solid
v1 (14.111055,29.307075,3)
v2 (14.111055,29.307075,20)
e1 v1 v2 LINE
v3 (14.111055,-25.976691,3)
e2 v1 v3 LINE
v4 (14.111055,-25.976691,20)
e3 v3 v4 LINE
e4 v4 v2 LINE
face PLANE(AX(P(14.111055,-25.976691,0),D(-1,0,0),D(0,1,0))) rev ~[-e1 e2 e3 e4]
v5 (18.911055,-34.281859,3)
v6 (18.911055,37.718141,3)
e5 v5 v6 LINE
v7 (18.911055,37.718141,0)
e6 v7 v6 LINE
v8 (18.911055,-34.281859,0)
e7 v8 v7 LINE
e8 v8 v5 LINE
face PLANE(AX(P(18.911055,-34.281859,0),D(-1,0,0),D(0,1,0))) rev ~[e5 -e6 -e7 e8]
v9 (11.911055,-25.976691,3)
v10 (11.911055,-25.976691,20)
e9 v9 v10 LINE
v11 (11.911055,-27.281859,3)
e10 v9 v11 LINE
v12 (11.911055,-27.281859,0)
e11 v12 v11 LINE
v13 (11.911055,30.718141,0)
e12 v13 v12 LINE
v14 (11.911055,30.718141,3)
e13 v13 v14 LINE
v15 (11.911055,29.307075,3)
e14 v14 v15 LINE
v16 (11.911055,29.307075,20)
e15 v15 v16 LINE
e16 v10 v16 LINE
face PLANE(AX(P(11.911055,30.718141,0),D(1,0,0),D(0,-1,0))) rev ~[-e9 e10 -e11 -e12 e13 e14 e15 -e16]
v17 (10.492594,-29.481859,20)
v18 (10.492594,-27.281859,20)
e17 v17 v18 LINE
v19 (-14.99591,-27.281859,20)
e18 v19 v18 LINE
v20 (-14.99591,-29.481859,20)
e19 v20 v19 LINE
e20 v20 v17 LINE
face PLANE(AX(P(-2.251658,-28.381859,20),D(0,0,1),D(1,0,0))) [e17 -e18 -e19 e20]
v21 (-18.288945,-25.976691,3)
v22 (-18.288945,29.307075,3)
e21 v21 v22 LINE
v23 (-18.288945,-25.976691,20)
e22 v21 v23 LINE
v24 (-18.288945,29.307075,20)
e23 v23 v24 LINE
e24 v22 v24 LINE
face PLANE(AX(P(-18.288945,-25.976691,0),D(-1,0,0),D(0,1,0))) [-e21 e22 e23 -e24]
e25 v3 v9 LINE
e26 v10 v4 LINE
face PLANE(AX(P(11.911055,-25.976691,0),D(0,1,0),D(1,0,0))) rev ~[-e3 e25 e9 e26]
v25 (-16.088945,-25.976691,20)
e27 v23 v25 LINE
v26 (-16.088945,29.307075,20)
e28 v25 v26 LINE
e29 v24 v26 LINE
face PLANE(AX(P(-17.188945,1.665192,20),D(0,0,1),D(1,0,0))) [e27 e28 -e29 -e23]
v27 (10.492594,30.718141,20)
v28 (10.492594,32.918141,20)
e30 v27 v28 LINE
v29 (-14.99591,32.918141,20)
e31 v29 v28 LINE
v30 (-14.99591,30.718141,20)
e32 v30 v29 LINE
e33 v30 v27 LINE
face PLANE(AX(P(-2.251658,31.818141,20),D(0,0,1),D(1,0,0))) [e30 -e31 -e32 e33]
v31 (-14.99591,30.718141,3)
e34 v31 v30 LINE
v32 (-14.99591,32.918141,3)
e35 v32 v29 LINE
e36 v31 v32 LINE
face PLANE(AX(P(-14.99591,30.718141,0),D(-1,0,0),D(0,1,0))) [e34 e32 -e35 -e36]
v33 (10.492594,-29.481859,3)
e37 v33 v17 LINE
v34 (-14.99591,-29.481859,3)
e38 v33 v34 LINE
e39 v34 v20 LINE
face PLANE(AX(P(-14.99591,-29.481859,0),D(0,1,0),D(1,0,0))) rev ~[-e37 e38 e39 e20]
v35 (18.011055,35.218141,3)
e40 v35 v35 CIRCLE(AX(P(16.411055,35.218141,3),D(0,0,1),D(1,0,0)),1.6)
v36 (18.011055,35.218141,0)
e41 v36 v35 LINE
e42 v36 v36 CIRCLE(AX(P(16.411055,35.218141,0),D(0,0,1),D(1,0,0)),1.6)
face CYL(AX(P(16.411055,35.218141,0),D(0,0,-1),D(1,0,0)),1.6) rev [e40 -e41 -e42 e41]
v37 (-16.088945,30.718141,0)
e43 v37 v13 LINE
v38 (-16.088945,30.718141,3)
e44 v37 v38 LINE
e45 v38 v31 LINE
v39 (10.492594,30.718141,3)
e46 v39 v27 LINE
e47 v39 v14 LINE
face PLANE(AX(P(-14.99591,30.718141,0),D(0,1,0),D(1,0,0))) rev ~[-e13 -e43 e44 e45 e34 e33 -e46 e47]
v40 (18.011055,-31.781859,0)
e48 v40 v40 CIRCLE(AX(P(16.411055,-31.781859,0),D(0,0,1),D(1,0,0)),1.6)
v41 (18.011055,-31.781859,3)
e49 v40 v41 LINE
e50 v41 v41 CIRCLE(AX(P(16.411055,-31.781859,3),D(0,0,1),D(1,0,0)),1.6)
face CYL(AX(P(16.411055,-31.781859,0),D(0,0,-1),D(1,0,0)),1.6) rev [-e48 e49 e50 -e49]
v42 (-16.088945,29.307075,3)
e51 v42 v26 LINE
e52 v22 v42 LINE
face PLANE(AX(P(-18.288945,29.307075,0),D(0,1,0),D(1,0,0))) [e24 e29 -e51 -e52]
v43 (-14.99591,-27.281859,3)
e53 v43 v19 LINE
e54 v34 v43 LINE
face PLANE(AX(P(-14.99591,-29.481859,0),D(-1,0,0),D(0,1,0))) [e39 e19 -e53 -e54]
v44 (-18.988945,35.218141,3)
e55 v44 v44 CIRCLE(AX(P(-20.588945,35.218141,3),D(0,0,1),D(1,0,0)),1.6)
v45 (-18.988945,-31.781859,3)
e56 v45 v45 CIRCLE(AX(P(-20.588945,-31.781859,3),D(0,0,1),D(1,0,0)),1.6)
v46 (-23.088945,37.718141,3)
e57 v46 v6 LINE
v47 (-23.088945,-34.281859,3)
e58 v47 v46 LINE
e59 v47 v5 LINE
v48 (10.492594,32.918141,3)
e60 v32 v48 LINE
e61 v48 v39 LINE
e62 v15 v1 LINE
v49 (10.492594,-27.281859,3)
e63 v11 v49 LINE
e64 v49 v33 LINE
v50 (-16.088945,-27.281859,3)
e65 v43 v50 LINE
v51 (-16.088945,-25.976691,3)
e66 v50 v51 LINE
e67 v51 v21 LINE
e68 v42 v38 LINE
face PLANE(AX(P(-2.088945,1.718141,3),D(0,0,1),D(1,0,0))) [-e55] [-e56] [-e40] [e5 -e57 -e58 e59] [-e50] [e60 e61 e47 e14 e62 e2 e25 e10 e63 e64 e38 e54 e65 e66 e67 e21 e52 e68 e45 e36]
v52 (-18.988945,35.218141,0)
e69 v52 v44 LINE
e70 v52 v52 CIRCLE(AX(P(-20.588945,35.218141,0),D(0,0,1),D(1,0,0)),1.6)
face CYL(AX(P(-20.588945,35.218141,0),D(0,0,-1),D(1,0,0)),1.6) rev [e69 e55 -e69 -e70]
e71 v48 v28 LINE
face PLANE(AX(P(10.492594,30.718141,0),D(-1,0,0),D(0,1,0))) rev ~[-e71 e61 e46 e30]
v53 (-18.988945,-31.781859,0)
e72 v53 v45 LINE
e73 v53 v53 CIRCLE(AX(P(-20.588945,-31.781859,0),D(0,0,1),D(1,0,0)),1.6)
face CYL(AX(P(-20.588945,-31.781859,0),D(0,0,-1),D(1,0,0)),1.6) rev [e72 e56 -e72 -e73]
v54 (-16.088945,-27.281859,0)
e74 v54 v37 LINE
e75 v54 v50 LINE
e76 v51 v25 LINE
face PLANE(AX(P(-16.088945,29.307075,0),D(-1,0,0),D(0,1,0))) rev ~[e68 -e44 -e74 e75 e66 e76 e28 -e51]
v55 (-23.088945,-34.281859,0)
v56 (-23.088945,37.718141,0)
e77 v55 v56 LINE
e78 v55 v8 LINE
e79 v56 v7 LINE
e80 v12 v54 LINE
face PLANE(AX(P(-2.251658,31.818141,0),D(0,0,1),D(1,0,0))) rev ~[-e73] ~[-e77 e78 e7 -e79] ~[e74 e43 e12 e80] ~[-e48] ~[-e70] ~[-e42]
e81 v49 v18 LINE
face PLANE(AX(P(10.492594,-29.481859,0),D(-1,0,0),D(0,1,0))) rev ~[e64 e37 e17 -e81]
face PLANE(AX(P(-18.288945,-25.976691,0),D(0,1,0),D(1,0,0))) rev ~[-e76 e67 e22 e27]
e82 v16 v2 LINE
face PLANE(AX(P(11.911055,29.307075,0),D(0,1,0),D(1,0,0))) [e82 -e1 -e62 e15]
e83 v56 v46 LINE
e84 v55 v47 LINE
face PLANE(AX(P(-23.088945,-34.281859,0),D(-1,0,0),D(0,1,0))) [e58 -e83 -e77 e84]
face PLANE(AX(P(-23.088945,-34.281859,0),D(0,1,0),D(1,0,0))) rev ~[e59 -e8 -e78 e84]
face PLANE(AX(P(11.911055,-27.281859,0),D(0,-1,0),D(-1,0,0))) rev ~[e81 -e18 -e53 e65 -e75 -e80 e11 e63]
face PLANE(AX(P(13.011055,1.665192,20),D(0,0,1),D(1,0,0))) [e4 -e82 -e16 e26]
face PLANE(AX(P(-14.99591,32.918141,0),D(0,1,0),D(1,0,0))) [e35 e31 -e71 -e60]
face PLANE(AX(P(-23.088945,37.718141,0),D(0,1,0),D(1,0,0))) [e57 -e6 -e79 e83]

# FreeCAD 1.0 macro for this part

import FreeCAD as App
import Part
import Sketcher

doc = App.newDocument("Part")
body = doc.addObject("PartDesign::Body", "Body")

sketch1 = body.newObject("Sketcher::SketchObject", "Sketch")
sketch1.AttachmentSupport = (doc.getObject("XY_Plane"), [""])
sketch1.MapMode = "FlatFace"
sketch1.addGeometry(Part.LineSegment(App.Vector(-23.1, 37.7, 0), App.Vector(-23.1, -34.3, 0)), False)
sketch1.addGeometry(Part.LineSegment(App.Vector(-23.1, -34.3, 0), App.Vector(18.9, -34.3, 0)), False)
sketch1.addGeometry(Part.LineSegment(App.Vector(18.9, -34.3, 0), App.Vector(18.9, 37.7, 0)), False)
sketch1.addGeometry(Part.LineSegment(App.Vector(18.9, 37.7, 0), App.Vector(-23.1, 37.7, 0)), False)
sketch1.addGeometry(Part.Circle(App.Vector(-20.6, -31.8, 0), App.Vector(0, 0, 1), 1.6), False)
sketch1.addGeometry(Part.Circle(App.Vector(16.4, -31.8, 0), App.Vector(0, 0, 1), 1.6), False)
sketch1.addGeometry(Part.Circle(App.Vector(-20.6, 35.2, 0), App.Vector(0, 0, 1), 1.6), False)
sketch1.addGeometry(Part.LineSegment(App.Vector(-18.3, -26, 0), App.Vector(-18.3, 29.3, 0)), False)
sketch1.addGeometry(Part.LineSegment(App.Vector(-18.3, 29.3, 0), App.Vector(-16.1, 29.3, 0)), False)
sketch1.addGeometry(Part.LineSegment(App.Vector(-16.1, 29.3, 0), App.Vector(-16.1, 30.7, 0)), False)
sketch1.addGeometry(Part.LineSegment(App.Vector(-16.1, 30.7, 0), App.Vector(-15, 30.7, 0)), False)
sketch1.addGeometry(Part.LineSegment(App.Vector(-15, 30.7, 0), App.Vector(-15, 32.9, 0)), False)
sketch1.addGeometry(Part.LineSegment(App.Vector(-15, 32.9, 0), App.Vector(10.5, 32.9, 0)), False)
sketch1.addGeometry(Part.LineSegment(App.Vector(10.5, 32.9, 0), App.Vector(10.5, 30.7, 0)), False)
sketch1.addGeometry(Part.LineSegment(App.Vector(10.5, 30.7, 0), App.Vector(11.9, 30.7, 0)), False)
sketch1.addGeometry(Part.LineSegment(App.Vector(11.9, 30.7, 0), App.Vector(11.9, 29.3, 0)), False)
sketch1.addGeometry(Part.LineSegment(App.Vector(11.9, 29.3, 0), App.Vector(14.1, 29.3, 0)), False)
sketch1.addGeometry(Part.LineSegment(App.Vector(14.1, 29.3, 0), App.Vector(14.1, -26, 0)), False)
sketch1.addGeometry(Part.LineSegment(App.Vector(14.1, -26, 0), App.Vector(11.9, -26, 0)), False)
sketch1.addGeometry(Part.LineSegment(App.Vector(11.9, -26, 0), App.Vector(11.9, -27.3, 0)), False)
sketch1.addGeometry(Part.LineSegment(App.Vector(11.9, -27.3, 0), App.Vector(10.5, -27.3, 0)), False)
sketch1.addGeometry(Part.LineSegment(App.Vector(10.5, -27.3, 0), App.Vector(10.5, -29.5, 0)), False)
sketch1.addGeometry(Part.LineSegment(App.Vector(10.5, -29.5, 0), App.Vector(-15, -29.5, 0)), False)
sketch1.addGeometry(Part.LineSegment(App.Vector(-15, -29.5, 0), App.Vector(-15, -27.3, 0)), False)
sketch1.addGeometry(Part.LineSegment(App.Vector(-15, -27.3, 0), App.Vector(-16.1, -27.3, 0)), False)
sketch1.addGeometry(Part.LineSegment(App.Vector(-16.1, -27.3, 0), App.Vector(-16.1, -26, 0)), False)
sketch1.addGeometry(Part.LineSegment(App.Vector(-16.1, -26, 0), App.Vector(-18.3, -26, 0)), False)
sketch1.addGeometry(Part.Circle(App.Vector(16.4, 35.2, 0), App.Vector(0, 0, 1), 1.6), False)
sketch1.addConstraint(Sketcher.Constraint("Coincident", 0, 2, 1, 1))
sketch1.addConstraint(Sketcher.Constraint("Coincident", 1, 2, 2, 1))
sketch1.addConstraint(Sketcher.Constraint("Coincident", 2, 2, 3, 1))
sketch1.addConstraint(Sketcher.Constraint("Coincident", 3, 2, 0, 1))
sketch1.addConstraint(Sketcher.Constraint("Coincident", 7, 2, 8, 1))
sketch1.addConstraint(Sketcher.Constraint("Coincident", 8, 2, 9, 1))
sketch1.addConstraint(Sketcher.Constraint("Coincident", 9, 2, 10, 1))
sketch1.addConstraint(Sketcher.Constraint("Coincident", 10, 2, 11, 1))
sketch1.addConstraint(Sketcher.Constraint("Coincident", 11, 2, 12, 1))
sketch1.addConstraint(Sketcher.Constraint("Coincident", 12, 2, 13, 1))
sketch1.addConstraint(Sketcher.Constraint("Coincident", 13, 2, 14, 1))
sketch1.addConstraint(Sketcher.Constraint("Coincident", 14, 2, 15, 1))
sketch1.addConstraint(Sketcher.Constraint("Coincident", 15, 2, 16, 1))
sketch1.addConstraint(Sketcher.Constraint("Coincident", 16, 2, 17, 1))
sketch1.addConstraint(Sketcher.Constraint("Coincident", 17, 2, 18, 1))
sketch1.addConstraint(Sketcher.Constraint("Coincident", 18, 2, 19, 1))
sketch1.addConstraint(Sketcher.Constraint("Coincident", 19, 2, 20, 1))
sketch1.addConstraint(Sketcher.Constraint("Coincident", 20, 2, 21, 1))
sketch1.addConstraint(Sketcher.Constraint("Coincident", 21, 2, 22, 1))
sketch1.addConstraint(Sketcher.Constraint("Coincident", 22, 2, 23, 1))
sketch1.addConstraint(Sketcher.Constraint("Coincident", 23, 2, 24, 1))
sketch1.addConstraint(Sketcher.Constraint("Coincident", 24, 2, 25, 1))
sketch1.addConstraint(Sketcher.Constraint("Coincident", 25, 2, 26, 1))
sketch1.addConstraint(Sketcher.Constraint("Coincident", 26, 2, 7, 1))
sketch1.addConstraint(Sketcher.Constraint("Vertical", 0))
sketch1.addConstraint(Sketcher.Constraint("Horizontal", 1))
sketch1.addConstraint(Sketcher.Constraint("Vertical", 2))
sketch1.addConstraint(Sketcher.Constraint("Horizontal", 3))
sketch1.addConstraint(Sketcher.Constraint("Vertical", 7))
sketch1.addConstraint(Sketcher.Constraint("Horizontal", 8))
sketch1.addConstraint(Sketcher.Constraint("Vertical", 9))
sketch1.addConstraint(Sketcher.Constraint("Horizontal", 10))
sketch1.addConstraint(Sketcher.Constraint("Vertical", 11))
sketch1.addConstraint(Sketcher.Constraint("Horizontal", 12))
sketch1.addConstraint(Sketcher.Constraint("Vertical", 13))
sketch1.addConstraint(Sketcher.Constraint("Horizontal", 14))
sketch1.addConstraint(Sketcher.Constraint("Vertical", 15))
sketch1.addConstraint(Sketcher.Constraint("Horizontal", 16))
sketch1.addConstraint(Sketcher.Constraint("Vertical", 17))
sketch1.addConstraint(Sketcher.Constraint("Horizontal", 18))
sketch1.addConstraint(Sketcher.Constraint("Vertical", 19))
sketch1.addConstraint(Sketcher.Constraint("Horizontal", 20))
sketch1.addConstraint(Sketcher.Constraint("Vertical", 21))
sketch1.addConstraint(Sketcher.Constraint("Horizontal", 22))
sketch1.addConstraint(Sketcher.Constraint("Vertical", 23))
sketch1.addConstraint(Sketcher.Constraint("Horizontal", 24))
sketch1.addConstraint(Sketcher.Constraint("Vertical", 25))
sketch1.addConstraint(Sketcher.Constraint("Horizontal", 26))
sketch1.addConstraint(Sketcher.Constraint("Equal", 4, 5))
sketch1.addConstraint(Sketcher.Constraint("Equal", 5, 6))
sketch1.addConstraint(Sketcher.Constraint("Equal", 6, 27))
sketch1.addConstraint(Sketcher.Constraint("Horizontal", 4, 3, 5, 3))
sketch1.addConstraint(Sketcher.Constraint("Horizontal", 6, 3, 27, 3))
sketch1.addConstraint(Sketcher.Constraint("Horizontal", 10, 2, 13, 2))
sketch1.addConstraint(Sketcher.Constraint("Horizontal", 8, 2, 15, 2))
sketch1.addConstraint(Sketcher.Constraint("Horizontal", 20, 2, 23, 2))
sketch1.addConstraint(Sketcher.Constraint("Horizontal", 18, 2, 25, 2))
sketch1.addConstraint(Sketcher.Constraint("Vertical", 4, 3, 6, 3))
sketch1.addConstraint(Sketcher.Constraint("Vertical", 5, 3, 27, 3))
sketch1.addConstraint(Sketcher.Constraint("Vertical", 15, 2, 18, 2))
sketch1.addConstraint(Sketcher.Constraint("Vertical", 13, 2, 20, 2))
sketch1.addConstraint(Sketcher.Constraint("Vertical", 11, 2, 22, 2))
sketch1.addConstraint(Sketcher.Constraint("Vertical", 9, 2, 24, 2))
sketch1.addConstraint(Sketcher.Constraint("Equal", 8, 16))
sketch1.addConstraint(Sketcher.Constraint("Equal", 26, 11))
sketch1.addConstraint(Sketcher.Constraint("Equal", 13, 21))
sketch1.addConstraint(Sketcher.Constraint("Diameter", 4, 3.2))
sketch1.addConstraint(Sketcher.Constraint("DistanceX", 1, 1, 1, 2, 42.0))
sketch1.addConstraint(Sketcher.Constraint("DistanceY", 0, 2, 0, 1, 72.0))
sketch1.addConstraint(Sketcher.Constraint("DistanceX", 8, 1, 8, 2, 2.2))
sketch1.addConstraint(Sketcher.Constraint("DistanceX", 4, 3, 5, 3, 37.0))
sketch1.addConstraint(Sketcher.Constraint("DistanceY", 4, 3, 6, 3, 67.0))
sketch1.addConstraint(Sketcher.Constraint("DistanceX", 3, 2, 8, 2, 7.0))
sketch1.addConstraint(Sketcher.Constraint("DistanceY", 9, 2, 3, 2, 7.0))
sketch1.addConstraint(Sketcher.Constraint("DistanceX", 14, 2, 2, 2, 7.0))
sketch1.addConstraint(Sketcher.Constraint("DistanceY", 1, 2, 19, 2, 7.0))
sketch1.addConstraint(Sketcher.Constraint("DistanceX", 0, 2, 4, 3, 2.5))
sketch1.addConstraint(Sketcher.Constraint("DistanceY", 0, 2, 4, 3, 2.5))
sketch1.addConstraint(Sketcher.Constraint("DistanceX", 14, 1, 14, 2, 1.418461))
sketch1.addConstraint(Sketcher.Constraint("DistanceY", 19, 2, 19, 1, 1.305168))
sketch1.addConstraint(Sketcher.Constraint("DistanceX", 10, 1, 10, 2, 1.093035))
sketch1.addConstraint(Sketcher.Constraint("DistanceY", 7, 1, 7, 2, 55.283766))
sketch1.addConstraint(Sketcher.Constraint("DistanceY", 4, 3, -1, 1, 31.781859))
sketch1.addConstraint(Sketcher.Constraint("DistanceX", 10, 2, -1, 1, 14.99591))
pad1 = body.newObject("PartDesign::Pad", "Pad")
pad1.Profile = sketch1
pad1.Length = 3

sketch2 = body.newObject("Sketcher::SketchObject", "Sketch001")
sketch2.AttachmentSupport = (doc.getObject("XY_Plane"), [""])
sketch2.MapMode = "FlatFace"
sketch2.addGeometry(Part.LineSegment(App.Vector(-15, 32.9, 0), App.Vector(-15, 30.7, 0)), False)
sketch2.addGeometry(Part.LineSegment(App.Vector(-15, 30.7, 0), App.Vector(10.5, 30.7, 0)), False)
sketch2.addGeometry(Part.LineSegment(App.Vector(10.5, 30.7, 0), App.Vector(10.5, 32.9, 0)), False)
sketch2.addGeometry(Part.LineSegment(App.Vector(10.5, 32.9, 0), App.Vector(-15, 32.9, 0)), False)
sketch2.addGeometry(Part.LineSegment(App.Vector(-18.3, 29.3, 0), App.Vector(-18.3, -26, 0)), False)
sketch2.addGeometry(Part.LineSegment(App.Vector(-18.3, -26, 0), App.Vector(-16.1, -26, 0)), False)
sketch2.addGeometry(Part.LineSegment(App.Vector(-16.1, -26, 0), App.Vector(-16.1, 29.3, 0)), False)
sketch2.addGeometry(Part.LineSegment(App.Vector(-16.1, 29.3, 0), App.Vector(-18.3, 29.3, 0)), False)
sketch2.addGeometry(Part.LineSegment(App.Vector(11.9, 29.3, 0), App.Vector(11.9, -26, 0)), False)
sketch2.addGeometry(Part.LineSegment(App.Vector(11.9, -26, 0), App.Vector(14.1, -26, 0)), False)
sketch2.addGeometry(Part.LineSegment(App.Vector(14.1, -26, 0), App.Vector(14.1, 29.3, 0)), False)
sketch2.addGeometry(Part.LineSegment(App.Vector(14.1, 29.3, 0), App.Vector(11.9, 29.3, 0)), False)
sketch2.addGeometry(Part.LineSegment(App.Vector(-15, -27.3, 0), App.Vector(-15, -29.5, 0)), False)
sketch2.addGeometry(Part.LineSegment(App.Vector(-15, -29.5, 0), App.Vector(10.5, -29.5, 0)), False)
sketch2.addGeometry(Part.LineSegment(App.Vector(10.5, -29.5, 0), App.Vector(10.5, -27.3, 0)), False)
sketch2.addGeometry(Part.LineSegment(App.Vector(10.5, -27.3, 0), App.Vector(-15, -27.3, 0)), False)
sketch2.addConstraint(Sketcher.Constraint("Coincident", 0, 2, 1, 1))
sketch2.addConstraint(Sketcher.Constraint("Coincident", 1, 2, 2, 1))
sketch2.addConstraint(Sketcher.Constraint("Coincident", 2, 2, 3, 1))
sketch2.addConstraint(Sketcher.Constraint("Coincident", 3, 2, 0, 1))
sketch2.addConstraint(Sketcher.Constraint("Coincident", 4, 2, 5, 1))
sketch2.addConstraint(Sketcher.Constraint("Coincident", 5, 2, 6, 1))
sketch2.addConstraint(Sketcher.Constraint("Coincident", 6, 2, 7, 1))
sketch2.addConstraint(Sketcher.Constraint("Coincident", 7, 2, 4, 1))
sketch2.addConstraint(Sketcher.Constraint("Coincident", 8, 2, 9, 1))
sketch2.addConstraint(Sketcher.Constraint("Coincident", 9, 2, 10, 1))
sketch2.addConstraint(Sketcher.Constraint("Coincident", 10, 2, 11, 1))
sketch2.addConstraint(Sketcher.Constraint("Coincident", 11, 2, 8, 1))
sketch2.addConstraint(Sketcher.Constraint("Coincident", 12, 2, 13, 1))
sketch2.addConstraint(Sketcher.Constraint("Coincident", 13, 2, 14, 1))
sketch2.addConstraint(Sketcher.Constraint("Coincident", 14, 2, 15, 1))
sketch2.addConstraint(Sketcher.Constraint("Coincident", 15, 2, 12, 1))
sketch2.addConstraint(Sketcher.Constraint("Vertical", 0))
sketch2.addConstraint(Sketcher.Constraint("Horizontal", 1))
sketch2.addConstraint(Sketcher.Constraint("Vertical", 2))
sketch2.addConstraint(Sketcher.Constraint("Horizontal", 3))
sketch2.addConstraint(Sketcher.Constraint("Vertical", 4))
sketch2.addConstraint(Sketcher.Constraint("Horizontal", 5))
sketch2.addConstraint(Sketcher.Constraint("Vertical", 6))
sketch2.addConstraint(Sketcher.Constraint("Horizontal", 7))
sketch2.addConstraint(Sketcher.Constraint("Vertical", 8))
sketch2.addConstraint(Sketcher.Constraint("Horizontal", 9))
sketch2.addConstraint(Sketcher.Constraint("Vertical", 10))
sketch2.addConstraint(Sketcher.Constraint("Horizontal", 11))
sketch2.addConstraint(Sketcher.Constraint("Vertical", 12))
sketch2.addConstraint(Sketcher.Constraint("Horizontal", 13))
sketch2.addConstraint(Sketcher.Constraint("Vertical", 14))
sketch2.addConstraint(Sketcher.Constraint("Horizontal", 15))
sketch2.addConstraint(Sketcher.Constraint("Horizontal", 5, 2, 8, 2))
sketch2.addConstraint(Sketcher.Constraint("Horizontal", 7, 2, 10, 2))
sketch2.addConstraint(Sketcher.Constraint("Vertical", 3, 2, 12, 2))
sketch2.addConstraint(Sketcher.Constraint("Vertical", 2, 2, 13, 2))
sketch2.addConstraint(Sketcher.Constraint("Equal", 7, 9))
sketch2.addConstraint(Sketcher.Constraint("Equal", 11, 0))
sketch2.addConstraint(Sketcher.Constraint("Equal", 2, 12))
sketch2.addConstraint(Sketcher.Constraint("DistanceX", 5, 1, 5, 2, 2.2))
sketch2.addConstraint(Sketcher.Constraint("DistanceX", 5, 2, 8, 2, 28.0))
sketch2.addConstraint(Sketcher.Constraint("DistanceX", 1, 1, 1, 2, 25.488504))
sketch2.addConstraint(Sketcher.Constraint("DistanceY", 4, 2, 4, 1, 55.283766))
sketch2.addConstraint(Sketcher.Constraint("DistanceX", 0, 2, -1, 1, 14.99591))
sketch2.addConstraint(Sketcher.Constraint("DistanceY", -1, 1, 0, 2, 30.718141))
sketch2.addConstraint(Sketcher.Constraint("DistanceY", 4, 2, -1, 1, 25.976691))
sketch2.addConstraint(Sketcher.Constraint("DistanceY", 12, 2, -1, 1, 29.481859))
sketch2.addConstraint(Sketcher.Constraint("DistanceX", 4, 2, 1, 2, 28.781539))
pad2 = body.newObject("PartDesign::Pad", "Pad001")
pad2.Profile = sketch2
pad2.Length = 20

doc.recompute()
